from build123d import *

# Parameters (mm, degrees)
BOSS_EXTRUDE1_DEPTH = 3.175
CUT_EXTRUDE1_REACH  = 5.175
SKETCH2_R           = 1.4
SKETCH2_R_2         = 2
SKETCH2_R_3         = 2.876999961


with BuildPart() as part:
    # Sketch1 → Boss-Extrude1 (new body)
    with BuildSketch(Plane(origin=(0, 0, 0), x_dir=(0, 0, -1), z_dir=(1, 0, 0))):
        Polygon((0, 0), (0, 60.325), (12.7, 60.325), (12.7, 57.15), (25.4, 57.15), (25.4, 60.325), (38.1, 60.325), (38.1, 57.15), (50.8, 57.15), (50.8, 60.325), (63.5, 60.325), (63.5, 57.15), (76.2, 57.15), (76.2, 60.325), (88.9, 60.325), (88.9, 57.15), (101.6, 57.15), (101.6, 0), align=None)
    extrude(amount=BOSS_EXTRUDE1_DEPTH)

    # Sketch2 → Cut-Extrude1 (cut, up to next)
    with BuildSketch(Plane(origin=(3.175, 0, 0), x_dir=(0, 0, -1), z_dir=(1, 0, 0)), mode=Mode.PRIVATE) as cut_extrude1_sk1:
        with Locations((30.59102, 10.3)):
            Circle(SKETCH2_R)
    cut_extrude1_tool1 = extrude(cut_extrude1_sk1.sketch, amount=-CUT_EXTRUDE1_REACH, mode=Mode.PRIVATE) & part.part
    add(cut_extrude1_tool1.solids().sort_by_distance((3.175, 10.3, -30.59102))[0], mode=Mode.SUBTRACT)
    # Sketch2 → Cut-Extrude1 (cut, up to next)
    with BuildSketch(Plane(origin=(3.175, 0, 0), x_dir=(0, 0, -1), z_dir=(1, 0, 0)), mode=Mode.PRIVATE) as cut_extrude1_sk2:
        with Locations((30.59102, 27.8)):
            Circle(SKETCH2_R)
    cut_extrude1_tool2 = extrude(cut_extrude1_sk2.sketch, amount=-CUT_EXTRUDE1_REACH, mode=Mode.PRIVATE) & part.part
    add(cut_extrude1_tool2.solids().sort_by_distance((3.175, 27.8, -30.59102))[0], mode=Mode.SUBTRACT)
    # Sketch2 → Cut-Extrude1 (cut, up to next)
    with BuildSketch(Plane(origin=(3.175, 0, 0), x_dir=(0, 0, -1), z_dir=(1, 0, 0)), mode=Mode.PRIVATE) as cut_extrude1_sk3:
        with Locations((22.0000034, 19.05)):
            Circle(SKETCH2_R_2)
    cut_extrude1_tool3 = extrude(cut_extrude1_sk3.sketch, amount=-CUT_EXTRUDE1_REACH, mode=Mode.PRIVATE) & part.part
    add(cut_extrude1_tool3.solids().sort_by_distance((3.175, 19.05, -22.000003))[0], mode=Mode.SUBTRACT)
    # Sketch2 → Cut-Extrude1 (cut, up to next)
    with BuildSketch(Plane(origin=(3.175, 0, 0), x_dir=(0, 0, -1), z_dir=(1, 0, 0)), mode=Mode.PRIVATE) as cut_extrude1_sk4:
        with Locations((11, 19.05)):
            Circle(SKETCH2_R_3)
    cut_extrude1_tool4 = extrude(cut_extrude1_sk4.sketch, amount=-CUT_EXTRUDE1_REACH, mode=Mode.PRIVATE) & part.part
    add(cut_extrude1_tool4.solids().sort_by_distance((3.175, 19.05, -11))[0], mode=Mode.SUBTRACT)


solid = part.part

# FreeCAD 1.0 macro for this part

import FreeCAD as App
import Part
import Sketcher
Q = App.Units.Quantity


def add_polygon(sketch, points):
    """Adds a closed chain of lines whose ends are joined by coincident constraints."""
    first, n = sketch.GeometryCount, len(points)
    for a, b in zip(points, points[1:] + points[:1]):
        sketch.addGeometry(Part.LineSegment(App.Vector(*a, 0), App.Vector(*b, 0)), False)
    for i in range(n):
        sketch.addConstraint(Sketcher.Constraint("Coincident", first + i, 2, first + (i + 1) % n, 1))

doc = App.newDocument("Part")
body = doc.addObject("PartDesign::Body", "Body")

# Sketch on YZ plane
sketch1 = doc.addObject("Sketcher::SketchObject", "Sketch")
body.addObject(sketch1)
sketch1.AttachmentSupport = (doc.YZ_Plane, [""])
sketch1.MapMode = "FlatFace"
add_polygon(sketch1, [(60.3, 0), (0, 0), (0, -101.6), (57.1, -101.6), (57.1, -88.9), (60.3, -88.9), (60.3, -76.2), (57.1, -76.2), (57.1, -63.5), (60.3, -63.5), (60.3, -50.8), (57.1, -50.8), (57.1, -38.1), (60.3, -38.1), (60.3, -25.4), (57.1, -25.4), (57.1, -12.7), (60.3, -12.7)])  # lines 0-17
sketch1.addConstraint(Sketcher.Constraint("Horizontal", 0))
sketch1.addConstraint(Sketcher.Constraint("Vertical", 1))
sketch1.addConstraint(Sketcher.Constraint("Horizontal", 2))
sketch1.addConstraint(Sketcher.Constraint("Vertical", 3))
sketch1.addConstraint(Sketcher.Constraint("Horizontal", 4))
sketch1.addConstraint(Sketcher.Constraint("Vertical", 5))
sketch1.addConstraint(Sketcher.Constraint("Horizontal", 6))
sketch1.addConstraint(Sketcher.Constraint("Vertical", 7))
sketch1.addConstraint(Sketcher.Constraint("Horizontal", 8))
sketch1.addConstraint(Sketcher.Constraint("Vertical", 9))
sketch1.addConstraint(Sketcher.Constraint("Horizontal", 10))
sketch1.addConstraint(Sketcher.Constraint("Vertical", 11))
sketch1.addConstraint(Sketcher.Constraint("Horizontal", 12))
sketch1.addConstraint(Sketcher.Constraint("Vertical", 13))
sketch1.addConstraint(Sketcher.Constraint("Horizontal", 14))
sketch1.addConstraint(Sketcher.Constraint("Vertical", 15))
sketch1.addConstraint(Sketcher.Constraint("Horizontal", 16))
sketch1.addConstraint(Sketcher.Constraint("Vertical", 17))
sketch1.addConstraint(Sketcher.Constraint("Coincident", 0, 2, -1, 1))
sketch1.addConstraint(Sketcher.Constraint("Vertical", 3, 2, 6, 2))
sketch1.addConstraint(Sketcher.Constraint("Vertical", 5, 2, 8, 2))
sketch1.addConstraint(Sketcher.Constraint("Vertical", 7, 2, 10, 2))
sketch1.addConstraint(Sketcher.Constraint("Vertical", 9, 2, 12, 2))
sketch1.addConstraint(Sketcher.Constraint("Vertical", 11, 2, 14, 2))
sketch1.addConstraint(Sketcher.Constraint("Vertical", 13, 2, 16, 2))
sketch1.addConstraint(Sketcher.Constraint("Equal", 3, 5))
sketch1.addConstraint(Sketcher.Constraint("Equal", 5, 7))
sketch1.addConstraint(Sketcher.Constraint("Equal", 7, 9))
sketch1.addConstraint(Sketcher.Constraint("Equal", 9, 11))
sketch1.addConstraint(Sketcher.Constraint("Equal", 11, 13))
sketch1.addConstraint(Sketcher.Constraint("Equal", 13, 15))
sketch1.addConstraint(Sketcher.Constraint("Equal", 15, 17))
sketch1.addConstraint(Sketcher.Constraint("DistanceY", 1, 2, 1, 1, Q("4 in")))
sketch1.addConstraint(Sketcher.Constraint("DistanceX", 2, 1, 2, 2, Q("2.25 in")))
sketch1.addConstraint(Sketcher.Constraint("DistanceX", 0, 2, 0, 1, Q("2.375 in")))
pad1 = doc.addObject("PartDesign::Pad", "Pad")
body.addObject(pad1)
pad1.Profile = sketch1
pad1.Length = Q("0.125 in")

# Sketch on YZ plane
sketch2 = doc.addObject("Sketcher::SketchObject", "Sketch001")
body.addObject(sketch2)
sketch2.AttachmentSupport = (doc.YZ_Plane, [""])
sketch2.MapMode = "FlatFace"
sketch2.AttachmentOffset = App.Placement(App.Vector(0, 0, 0.125 * 25.4), App.Rotation())
sketch2.addGeometry(Part.Circle(App.Vector(10.3, -30.6, 0), App.Vector(0, 0, 1), 1.4), False)
sketch2.addConstraint(Sketcher.Constraint("Diameter", 0, 2.8))
sketch2.addConstraint(Sketcher.Constraint("DistanceX", -1, 1, 0, 3, 10.3))
sketch2.addConstraint(Sketcher.Constraint("DistanceY", 0, 3, -1, 1, 30.59102))
pocket1 = doc.addObject("PartDesign::Pocket", "Pocket")
body.addObject(pocket1)
pocket1.Profile = sketch2
pocket1.Type = "UpToFirst"

# Sketch on YZ plane
sketch3 = doc.addObject("Sketcher::SketchObject", "Sketch002")
body.addObject(sketch3)
sketch3.AttachmentSupport = (doc.YZ_Plane, [""])
sketch3.MapMode = "FlatFace"
sketch3.AttachmentOffset = App.Placement(App.Vector(0, 0, 0.125 * 25.4), App.Rotation())
sketch3.addGeometry(Part.Circle(App.Vector(27.8, -30.6, 0), App.Vector(0, 0, 1), 1.4), False)
sketch3.addConstraint(Sketcher.Constraint("Diameter", 0, 2.8))
sketch3.addConstraint(Sketcher.Constraint("DistanceX", -1, 1, 0, 3, 27.8))
sketch3.addConstraint(Sketcher.Constraint("DistanceY", 0, 3, -1, 1, 30.59102))
pocket2 = doc.addObject("PartDesign::Pocket", "Pocket001")
body.addObject(pocket2)
pocket2.Profile = sketch3
pocket2.Type = "UpToFirst"

# Sketch on YZ plane
sketch4 = doc.addObject("Sketcher::SketchObject", "Sketch003")
body.addObject(sketch4)
sketch4.AttachmentSupport = (doc.YZ_Plane, [""])
sketch4.MapMode = "FlatFace"
sketch4.AttachmentOffset = App.Placement(App.Vector(0, 0, 0.125 * 25.4), App.Rotation())
sketch4.addGeometry(Part.Circle(App.Vector(19.1, -22, 0), App.Vector(0, 0, 1), 2), False)
sketch4.addConstraint(Sketcher.Constraint("Diameter", 0, 4.0))
sketch4.addConstraint(Sketcher.Constraint("DistanceX", -1, 1, 0, 3, Q("0.75 in")))
sketch4.addConstraint(Sketcher.Constraint("DistanceY", 0, 3, -1, 1, 22.000003))
pocket3 = doc.addObject("PartDesign::Pocket", "Pocket002")
body.addObject(pocket3)
pocket3.Profile = sketch4
pocket3.Type = "UpToFirst"

# Sketch on YZ plane
sketch5 = doc.addObject("Sketcher::SketchObject", "Sketch004")
body.addObject(sketch5)
sketch5.AttachmentSupport = (doc.YZ_Plane, [""])
sketch5.MapMode = "FlatFace"
sketch5.AttachmentOffset = App.Placement(App.Vector(0, 0, 0.125 * 25.4), App.Rotation())
sketch5.addGeometry(Part.Circle(App.Vector(19.1, -11, 0), App.Vector(0, 0, 1), 2.9), False)
sketch5.addConstraint(Sketcher.Constraint("Diameter", 0, 5.754))
sketch5.addConstraint(Sketcher.Constraint("DistanceX", -1, 1, 0, 3, Q("0.75 in")))
sketch5.addConstraint(Sketcher.Constraint("DistanceY", 0, 3, -1, 1, 11.0))
pocket4 = doc.addObject("PartDesign::Pocket", "Pocket003")
body.addObject(pocket4)
pocket4.Profile = sketch5
pocket4.Type = "UpToFirst"

doc.recompute()
